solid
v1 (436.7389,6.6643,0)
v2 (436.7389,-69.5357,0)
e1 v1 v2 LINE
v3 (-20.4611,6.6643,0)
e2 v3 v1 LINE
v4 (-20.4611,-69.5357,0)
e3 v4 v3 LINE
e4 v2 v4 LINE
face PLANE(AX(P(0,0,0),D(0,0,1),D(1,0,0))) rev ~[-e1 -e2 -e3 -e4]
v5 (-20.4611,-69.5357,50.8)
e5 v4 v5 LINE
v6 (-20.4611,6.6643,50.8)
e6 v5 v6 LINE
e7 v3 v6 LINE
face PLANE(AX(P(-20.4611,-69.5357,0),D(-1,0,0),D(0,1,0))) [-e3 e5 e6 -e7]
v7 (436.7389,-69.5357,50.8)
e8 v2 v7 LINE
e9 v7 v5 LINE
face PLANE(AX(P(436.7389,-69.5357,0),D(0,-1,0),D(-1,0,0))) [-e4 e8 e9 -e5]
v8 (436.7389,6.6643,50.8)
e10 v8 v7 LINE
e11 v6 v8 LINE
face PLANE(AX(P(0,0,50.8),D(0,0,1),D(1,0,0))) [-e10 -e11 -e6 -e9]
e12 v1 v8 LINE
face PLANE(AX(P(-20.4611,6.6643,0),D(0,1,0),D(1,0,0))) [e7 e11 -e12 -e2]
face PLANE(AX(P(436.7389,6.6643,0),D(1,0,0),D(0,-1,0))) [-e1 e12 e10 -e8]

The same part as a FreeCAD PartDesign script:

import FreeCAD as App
import Part
import Sketcher
from FreeCAD import Vector
Q = App.Units.Quantity


def add_polygon(sketch, points):
    """Adds a closed chain of lines whose ends are joined by coincident constraints."""
    first, n = sketch.GeometryCount, len(points)
    for a, b in zip(points, points[1:] + points[:1]):
        sketch.addGeometry(Part.LineSegment(App.Vector(*a, 0), App.Vector(*b, 0)), False)
    for i in range(n):
        sketch.addConstraint(Sketcher.Constraint("Coincident", first + i, 2, first + (i + 1) % n, 1))

doc = App.newDocument("Part")
body = doc.addObject("PartDesign::Body", "Body")

sketch1 = doc.addObject("Sketcher::SketchObject", "Sketch")
body.addObject(sketch1)
sketch1.AttachmentSupport = (doc.XY_Plane, [""])
sketch1.MapMode = "FlatFace"
add_polygon(sketch1, [(436.7389, 6.6643), (-20.4611, 6.6643), (-20.4611, -69.5357), (436.7389, -69.5357)])
sketch1.addConstraint([
    Sketcher.Constraint("Horizontal", 0),
    Sketcher.Constraint("Vertical", 1),
    Sketcher.Constraint("Horizontal", 2),
    Sketcher.Constraint("Vertical", 3),
    Sketcher.Constraint("DistanceX", 0, 2, 0, 1, Q("18 in")),
    Sketcher.Constraint("DistanceY", 1, 2, 1, 1, Q("3 in")),
    Sketcher.Constraint("DistanceX", 0, 2, -1, 1, Q("20.461 mm")),
    Sketcher.Constraint("DistanceY", -1, 1, 0, 2, Q("6.6643 mm")),
])
pad1 = doc.addObject("PartDesign::Pad", "Pad")
body.addObject(pad1)
pad1.Profile = sketch1
pad1.Length = Q("2 in")

doc.recompute()
